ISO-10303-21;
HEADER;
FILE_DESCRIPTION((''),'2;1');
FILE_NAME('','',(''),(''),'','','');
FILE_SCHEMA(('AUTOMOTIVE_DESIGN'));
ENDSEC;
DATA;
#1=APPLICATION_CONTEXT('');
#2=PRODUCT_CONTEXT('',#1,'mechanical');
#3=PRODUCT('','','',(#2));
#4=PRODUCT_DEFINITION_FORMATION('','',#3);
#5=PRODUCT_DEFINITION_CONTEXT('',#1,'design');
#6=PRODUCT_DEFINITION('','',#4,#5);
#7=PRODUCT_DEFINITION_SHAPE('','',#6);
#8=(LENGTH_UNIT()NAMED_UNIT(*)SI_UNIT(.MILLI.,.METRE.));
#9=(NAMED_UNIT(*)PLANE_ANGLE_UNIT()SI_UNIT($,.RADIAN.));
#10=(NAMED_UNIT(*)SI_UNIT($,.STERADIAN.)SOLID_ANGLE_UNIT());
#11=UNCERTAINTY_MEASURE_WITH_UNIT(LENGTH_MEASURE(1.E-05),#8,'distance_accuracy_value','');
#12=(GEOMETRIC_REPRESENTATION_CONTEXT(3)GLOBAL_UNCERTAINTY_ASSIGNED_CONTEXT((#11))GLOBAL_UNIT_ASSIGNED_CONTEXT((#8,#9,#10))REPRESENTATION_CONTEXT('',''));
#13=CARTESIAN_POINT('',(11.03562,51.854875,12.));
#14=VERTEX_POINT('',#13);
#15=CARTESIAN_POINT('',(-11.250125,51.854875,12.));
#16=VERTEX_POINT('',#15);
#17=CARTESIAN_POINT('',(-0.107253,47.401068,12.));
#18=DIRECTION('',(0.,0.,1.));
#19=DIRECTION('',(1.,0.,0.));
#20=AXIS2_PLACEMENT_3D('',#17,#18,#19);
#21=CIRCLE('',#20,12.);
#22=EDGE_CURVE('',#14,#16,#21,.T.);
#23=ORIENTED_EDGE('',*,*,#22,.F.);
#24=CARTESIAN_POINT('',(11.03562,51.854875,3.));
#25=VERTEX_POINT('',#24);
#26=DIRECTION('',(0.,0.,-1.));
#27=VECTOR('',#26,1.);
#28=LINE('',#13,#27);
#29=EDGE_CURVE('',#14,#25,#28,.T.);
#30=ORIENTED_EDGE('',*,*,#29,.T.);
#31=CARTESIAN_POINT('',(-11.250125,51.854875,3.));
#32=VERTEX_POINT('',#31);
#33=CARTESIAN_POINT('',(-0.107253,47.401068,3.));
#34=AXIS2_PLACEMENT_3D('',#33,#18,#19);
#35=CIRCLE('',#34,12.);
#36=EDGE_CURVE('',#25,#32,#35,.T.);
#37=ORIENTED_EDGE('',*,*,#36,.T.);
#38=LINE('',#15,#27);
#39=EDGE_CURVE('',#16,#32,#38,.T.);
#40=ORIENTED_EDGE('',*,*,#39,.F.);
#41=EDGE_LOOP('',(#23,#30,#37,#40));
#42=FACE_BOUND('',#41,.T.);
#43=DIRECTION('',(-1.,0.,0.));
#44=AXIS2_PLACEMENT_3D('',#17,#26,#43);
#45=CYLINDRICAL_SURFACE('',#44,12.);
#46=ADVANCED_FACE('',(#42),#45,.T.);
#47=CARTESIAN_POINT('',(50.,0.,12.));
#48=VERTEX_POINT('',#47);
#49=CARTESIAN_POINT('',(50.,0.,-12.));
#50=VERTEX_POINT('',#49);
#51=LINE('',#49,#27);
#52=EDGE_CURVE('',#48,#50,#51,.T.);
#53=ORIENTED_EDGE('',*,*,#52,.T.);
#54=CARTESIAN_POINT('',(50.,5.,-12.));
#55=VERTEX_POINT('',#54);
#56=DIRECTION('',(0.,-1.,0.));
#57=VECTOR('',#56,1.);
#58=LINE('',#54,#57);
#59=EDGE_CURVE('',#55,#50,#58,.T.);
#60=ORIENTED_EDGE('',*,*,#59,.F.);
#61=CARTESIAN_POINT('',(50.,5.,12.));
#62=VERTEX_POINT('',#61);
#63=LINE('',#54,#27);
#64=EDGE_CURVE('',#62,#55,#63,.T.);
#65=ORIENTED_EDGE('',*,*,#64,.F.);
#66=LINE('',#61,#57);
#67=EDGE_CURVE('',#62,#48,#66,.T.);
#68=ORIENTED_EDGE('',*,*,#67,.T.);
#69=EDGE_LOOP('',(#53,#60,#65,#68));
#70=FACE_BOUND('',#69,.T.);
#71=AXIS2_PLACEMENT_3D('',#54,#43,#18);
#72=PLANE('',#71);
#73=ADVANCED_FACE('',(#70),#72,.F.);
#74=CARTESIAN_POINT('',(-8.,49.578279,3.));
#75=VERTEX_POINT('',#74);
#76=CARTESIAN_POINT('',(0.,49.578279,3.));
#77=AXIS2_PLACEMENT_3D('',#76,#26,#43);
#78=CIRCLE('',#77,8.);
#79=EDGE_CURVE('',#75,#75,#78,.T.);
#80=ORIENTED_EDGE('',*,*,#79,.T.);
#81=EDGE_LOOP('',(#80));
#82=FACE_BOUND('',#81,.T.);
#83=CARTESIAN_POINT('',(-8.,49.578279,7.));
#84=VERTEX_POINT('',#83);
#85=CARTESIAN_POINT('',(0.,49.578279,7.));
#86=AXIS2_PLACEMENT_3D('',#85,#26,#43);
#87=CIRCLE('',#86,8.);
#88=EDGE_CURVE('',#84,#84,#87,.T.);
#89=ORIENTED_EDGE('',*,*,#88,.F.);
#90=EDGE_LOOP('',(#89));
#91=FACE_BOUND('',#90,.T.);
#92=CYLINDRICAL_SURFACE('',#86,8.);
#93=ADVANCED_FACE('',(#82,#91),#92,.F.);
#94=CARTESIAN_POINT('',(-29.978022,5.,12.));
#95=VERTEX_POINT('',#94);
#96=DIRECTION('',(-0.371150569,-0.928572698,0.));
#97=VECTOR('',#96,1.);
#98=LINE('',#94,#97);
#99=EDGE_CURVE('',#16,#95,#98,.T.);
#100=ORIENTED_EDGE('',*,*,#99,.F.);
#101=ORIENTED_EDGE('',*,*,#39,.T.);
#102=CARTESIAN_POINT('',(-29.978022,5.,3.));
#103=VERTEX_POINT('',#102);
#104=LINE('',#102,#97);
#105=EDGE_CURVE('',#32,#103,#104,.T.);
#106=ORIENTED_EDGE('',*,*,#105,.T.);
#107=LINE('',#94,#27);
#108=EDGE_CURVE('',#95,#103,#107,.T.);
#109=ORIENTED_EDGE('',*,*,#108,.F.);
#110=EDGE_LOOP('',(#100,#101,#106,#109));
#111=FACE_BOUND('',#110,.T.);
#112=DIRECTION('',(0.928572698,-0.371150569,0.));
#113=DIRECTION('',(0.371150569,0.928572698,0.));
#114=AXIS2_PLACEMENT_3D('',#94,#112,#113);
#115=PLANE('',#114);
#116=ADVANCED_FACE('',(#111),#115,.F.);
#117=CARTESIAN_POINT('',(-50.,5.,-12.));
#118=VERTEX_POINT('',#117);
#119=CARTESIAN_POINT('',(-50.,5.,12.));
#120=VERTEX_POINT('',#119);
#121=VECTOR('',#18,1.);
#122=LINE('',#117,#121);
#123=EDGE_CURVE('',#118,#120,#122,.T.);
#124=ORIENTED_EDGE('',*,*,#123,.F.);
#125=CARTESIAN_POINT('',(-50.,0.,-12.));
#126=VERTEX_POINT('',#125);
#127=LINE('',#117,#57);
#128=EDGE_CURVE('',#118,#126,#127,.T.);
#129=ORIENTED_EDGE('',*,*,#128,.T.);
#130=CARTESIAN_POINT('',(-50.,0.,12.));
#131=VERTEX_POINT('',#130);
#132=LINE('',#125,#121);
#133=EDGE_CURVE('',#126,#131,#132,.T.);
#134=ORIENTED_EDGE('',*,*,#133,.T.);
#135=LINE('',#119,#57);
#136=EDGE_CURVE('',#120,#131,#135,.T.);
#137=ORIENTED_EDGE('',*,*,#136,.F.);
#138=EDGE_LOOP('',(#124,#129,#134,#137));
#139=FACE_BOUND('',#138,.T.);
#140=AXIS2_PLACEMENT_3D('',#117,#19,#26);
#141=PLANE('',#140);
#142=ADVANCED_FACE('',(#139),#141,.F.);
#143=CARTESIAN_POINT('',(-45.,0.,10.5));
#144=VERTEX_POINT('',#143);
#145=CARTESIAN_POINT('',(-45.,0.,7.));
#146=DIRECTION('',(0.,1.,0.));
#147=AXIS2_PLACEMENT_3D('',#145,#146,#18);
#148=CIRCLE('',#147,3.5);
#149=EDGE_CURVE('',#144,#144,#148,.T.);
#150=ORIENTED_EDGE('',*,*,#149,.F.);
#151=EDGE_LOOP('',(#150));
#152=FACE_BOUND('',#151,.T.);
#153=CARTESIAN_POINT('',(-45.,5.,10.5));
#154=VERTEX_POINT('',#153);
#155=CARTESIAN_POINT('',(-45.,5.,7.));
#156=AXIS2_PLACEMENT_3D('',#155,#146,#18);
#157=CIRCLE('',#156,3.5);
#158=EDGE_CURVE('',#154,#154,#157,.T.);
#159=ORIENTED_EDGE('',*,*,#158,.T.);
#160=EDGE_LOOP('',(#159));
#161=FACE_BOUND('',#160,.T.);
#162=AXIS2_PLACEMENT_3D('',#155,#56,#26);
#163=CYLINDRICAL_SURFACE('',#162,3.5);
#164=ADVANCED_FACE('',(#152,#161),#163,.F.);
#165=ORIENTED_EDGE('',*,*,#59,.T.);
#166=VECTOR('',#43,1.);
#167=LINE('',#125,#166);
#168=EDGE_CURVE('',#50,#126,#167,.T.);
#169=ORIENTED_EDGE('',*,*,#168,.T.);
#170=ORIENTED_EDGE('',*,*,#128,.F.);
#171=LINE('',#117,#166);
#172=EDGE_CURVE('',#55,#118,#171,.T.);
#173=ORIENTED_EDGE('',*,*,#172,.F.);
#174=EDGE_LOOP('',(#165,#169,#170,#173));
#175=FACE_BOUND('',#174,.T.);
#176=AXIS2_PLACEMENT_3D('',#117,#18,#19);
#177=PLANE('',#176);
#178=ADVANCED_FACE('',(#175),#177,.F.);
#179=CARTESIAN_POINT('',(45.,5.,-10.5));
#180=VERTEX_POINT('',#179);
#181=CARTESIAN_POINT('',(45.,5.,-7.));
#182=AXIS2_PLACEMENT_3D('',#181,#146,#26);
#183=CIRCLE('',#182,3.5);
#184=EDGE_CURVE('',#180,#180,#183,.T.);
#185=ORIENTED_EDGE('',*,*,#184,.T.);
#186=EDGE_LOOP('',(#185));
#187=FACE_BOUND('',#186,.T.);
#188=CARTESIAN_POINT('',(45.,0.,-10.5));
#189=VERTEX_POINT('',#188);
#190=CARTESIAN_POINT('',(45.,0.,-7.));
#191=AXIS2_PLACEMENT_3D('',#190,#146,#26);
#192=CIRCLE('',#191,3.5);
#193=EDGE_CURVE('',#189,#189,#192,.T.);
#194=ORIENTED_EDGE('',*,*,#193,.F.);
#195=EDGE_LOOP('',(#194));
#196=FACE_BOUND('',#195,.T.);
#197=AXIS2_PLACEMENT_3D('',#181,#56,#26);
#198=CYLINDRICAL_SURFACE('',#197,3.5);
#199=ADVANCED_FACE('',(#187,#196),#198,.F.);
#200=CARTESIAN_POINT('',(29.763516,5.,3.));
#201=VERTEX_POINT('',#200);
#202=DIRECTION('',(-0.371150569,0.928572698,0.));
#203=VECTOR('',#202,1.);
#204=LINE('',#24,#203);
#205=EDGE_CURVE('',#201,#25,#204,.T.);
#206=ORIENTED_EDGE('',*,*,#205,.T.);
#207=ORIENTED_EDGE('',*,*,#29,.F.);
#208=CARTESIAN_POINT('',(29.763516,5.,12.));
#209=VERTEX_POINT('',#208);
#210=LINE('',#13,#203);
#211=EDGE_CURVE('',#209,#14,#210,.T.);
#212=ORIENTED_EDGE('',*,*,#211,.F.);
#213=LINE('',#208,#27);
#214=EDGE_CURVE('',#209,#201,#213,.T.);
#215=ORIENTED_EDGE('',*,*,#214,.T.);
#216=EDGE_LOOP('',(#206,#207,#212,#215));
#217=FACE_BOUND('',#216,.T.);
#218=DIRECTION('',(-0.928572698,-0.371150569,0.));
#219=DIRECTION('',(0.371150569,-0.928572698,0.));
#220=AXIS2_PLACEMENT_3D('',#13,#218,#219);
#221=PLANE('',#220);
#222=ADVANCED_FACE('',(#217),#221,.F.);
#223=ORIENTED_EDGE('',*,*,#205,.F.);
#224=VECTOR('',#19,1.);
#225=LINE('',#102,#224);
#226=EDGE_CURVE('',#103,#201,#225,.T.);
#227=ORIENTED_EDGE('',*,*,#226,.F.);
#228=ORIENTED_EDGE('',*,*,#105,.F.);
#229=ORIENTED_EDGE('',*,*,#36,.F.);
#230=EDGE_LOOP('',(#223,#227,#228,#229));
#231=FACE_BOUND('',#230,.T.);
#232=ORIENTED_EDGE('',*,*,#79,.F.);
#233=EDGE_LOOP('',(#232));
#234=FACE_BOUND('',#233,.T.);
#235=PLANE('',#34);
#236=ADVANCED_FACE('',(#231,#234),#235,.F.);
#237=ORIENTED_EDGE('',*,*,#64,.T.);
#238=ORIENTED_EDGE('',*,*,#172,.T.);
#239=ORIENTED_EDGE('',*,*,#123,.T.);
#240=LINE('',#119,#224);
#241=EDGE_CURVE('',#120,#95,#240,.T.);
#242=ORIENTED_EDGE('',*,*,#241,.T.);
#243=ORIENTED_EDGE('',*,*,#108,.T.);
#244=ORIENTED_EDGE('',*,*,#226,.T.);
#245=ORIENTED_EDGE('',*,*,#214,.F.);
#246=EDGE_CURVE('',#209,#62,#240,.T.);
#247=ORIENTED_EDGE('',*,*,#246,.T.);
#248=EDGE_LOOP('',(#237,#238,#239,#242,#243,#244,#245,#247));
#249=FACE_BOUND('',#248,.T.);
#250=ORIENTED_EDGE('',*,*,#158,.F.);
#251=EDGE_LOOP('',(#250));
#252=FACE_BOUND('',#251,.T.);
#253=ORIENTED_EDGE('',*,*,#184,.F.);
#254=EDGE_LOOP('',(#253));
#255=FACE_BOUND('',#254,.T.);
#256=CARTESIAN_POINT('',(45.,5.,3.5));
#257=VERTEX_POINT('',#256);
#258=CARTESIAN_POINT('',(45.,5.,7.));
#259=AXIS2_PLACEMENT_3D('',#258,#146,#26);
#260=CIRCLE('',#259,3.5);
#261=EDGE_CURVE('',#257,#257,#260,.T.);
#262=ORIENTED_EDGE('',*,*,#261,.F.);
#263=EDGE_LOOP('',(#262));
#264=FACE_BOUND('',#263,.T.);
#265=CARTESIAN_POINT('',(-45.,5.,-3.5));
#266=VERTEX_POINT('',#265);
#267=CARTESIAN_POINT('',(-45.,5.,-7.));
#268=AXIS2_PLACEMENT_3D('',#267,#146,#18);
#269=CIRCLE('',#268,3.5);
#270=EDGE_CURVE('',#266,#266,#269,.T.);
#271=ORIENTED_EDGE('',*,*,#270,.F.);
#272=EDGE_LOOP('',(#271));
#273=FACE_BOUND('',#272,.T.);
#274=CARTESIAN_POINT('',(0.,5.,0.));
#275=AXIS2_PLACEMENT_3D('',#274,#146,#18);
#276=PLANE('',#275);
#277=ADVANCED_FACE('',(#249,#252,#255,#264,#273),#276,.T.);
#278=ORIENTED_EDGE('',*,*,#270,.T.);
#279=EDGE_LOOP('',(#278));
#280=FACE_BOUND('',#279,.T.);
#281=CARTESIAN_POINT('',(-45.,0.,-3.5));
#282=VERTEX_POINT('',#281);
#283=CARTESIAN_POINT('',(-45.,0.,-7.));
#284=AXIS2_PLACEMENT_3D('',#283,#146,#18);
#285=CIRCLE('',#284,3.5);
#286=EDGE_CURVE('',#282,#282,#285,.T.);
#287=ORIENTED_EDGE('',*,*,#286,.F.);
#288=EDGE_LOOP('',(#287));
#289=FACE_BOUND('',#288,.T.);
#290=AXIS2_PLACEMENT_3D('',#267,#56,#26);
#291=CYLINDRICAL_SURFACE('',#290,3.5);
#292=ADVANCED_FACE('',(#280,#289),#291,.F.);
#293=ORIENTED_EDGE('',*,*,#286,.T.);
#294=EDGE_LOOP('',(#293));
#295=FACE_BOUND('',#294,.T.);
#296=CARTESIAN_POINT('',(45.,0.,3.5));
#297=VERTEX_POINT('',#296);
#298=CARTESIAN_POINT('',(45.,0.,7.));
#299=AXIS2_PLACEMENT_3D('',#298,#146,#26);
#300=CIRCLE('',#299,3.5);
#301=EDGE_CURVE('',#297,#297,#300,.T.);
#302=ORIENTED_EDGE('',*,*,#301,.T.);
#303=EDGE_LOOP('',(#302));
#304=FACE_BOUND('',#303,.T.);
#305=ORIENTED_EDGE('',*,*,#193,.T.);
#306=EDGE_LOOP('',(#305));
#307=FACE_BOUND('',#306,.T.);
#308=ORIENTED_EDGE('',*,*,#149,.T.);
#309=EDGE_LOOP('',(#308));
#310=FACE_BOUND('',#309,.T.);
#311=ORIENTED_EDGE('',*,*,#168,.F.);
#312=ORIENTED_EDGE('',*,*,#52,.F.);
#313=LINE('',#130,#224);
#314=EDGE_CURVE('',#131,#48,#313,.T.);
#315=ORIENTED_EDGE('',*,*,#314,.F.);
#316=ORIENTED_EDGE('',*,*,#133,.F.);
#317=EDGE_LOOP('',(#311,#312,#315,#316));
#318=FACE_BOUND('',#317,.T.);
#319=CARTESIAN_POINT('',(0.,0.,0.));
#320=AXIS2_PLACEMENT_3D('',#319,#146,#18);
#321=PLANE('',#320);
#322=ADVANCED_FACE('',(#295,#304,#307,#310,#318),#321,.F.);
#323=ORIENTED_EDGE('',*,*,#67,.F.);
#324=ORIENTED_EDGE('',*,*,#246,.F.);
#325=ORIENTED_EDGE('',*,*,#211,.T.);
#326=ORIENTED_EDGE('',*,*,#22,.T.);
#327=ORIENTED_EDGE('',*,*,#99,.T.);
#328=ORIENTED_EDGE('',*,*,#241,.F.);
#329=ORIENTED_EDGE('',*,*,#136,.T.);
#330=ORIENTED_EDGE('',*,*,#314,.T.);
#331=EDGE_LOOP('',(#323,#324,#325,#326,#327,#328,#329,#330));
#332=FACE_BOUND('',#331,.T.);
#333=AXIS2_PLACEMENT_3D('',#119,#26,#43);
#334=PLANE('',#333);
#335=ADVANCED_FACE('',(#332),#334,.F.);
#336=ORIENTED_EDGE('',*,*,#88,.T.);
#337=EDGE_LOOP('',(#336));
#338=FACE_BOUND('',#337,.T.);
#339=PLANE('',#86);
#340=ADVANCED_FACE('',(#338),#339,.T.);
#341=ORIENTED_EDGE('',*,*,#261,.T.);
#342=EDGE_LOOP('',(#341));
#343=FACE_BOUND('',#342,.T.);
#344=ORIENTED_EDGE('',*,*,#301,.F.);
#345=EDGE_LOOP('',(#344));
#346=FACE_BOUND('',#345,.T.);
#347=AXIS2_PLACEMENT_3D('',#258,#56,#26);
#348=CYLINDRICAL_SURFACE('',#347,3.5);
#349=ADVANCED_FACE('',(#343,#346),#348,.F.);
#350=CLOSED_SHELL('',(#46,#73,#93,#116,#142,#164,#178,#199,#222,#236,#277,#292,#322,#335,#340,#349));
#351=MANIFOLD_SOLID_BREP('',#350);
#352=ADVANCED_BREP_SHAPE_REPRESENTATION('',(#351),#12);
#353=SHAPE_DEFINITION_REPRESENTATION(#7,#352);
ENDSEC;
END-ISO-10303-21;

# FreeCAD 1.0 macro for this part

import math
import FreeCAD as App
import Part
import Sketcher
Q = App.Units.Quantity


def add_polygon(sketch, points):
    """Adds a closed chain of lines whose ends are joined by coincident constraints."""
    first, n = sketch.GeometryCount, len(points)
    for a, b in zip(points, points[1:] + points[:1]):
        sketch.addGeometry(Part.LineSegment(App.Vector(*a, 0), App.Vector(*b, 0)), False)
    for i in range(n):
        sketch.addConstraint(Sketcher.Constraint("Coincident", first + i, 2, first + (i + 1) % n, 1))

doc = App.newDocument("Part")
body = doc.addObject("PartDesign::Body", "Body")

# Sketch on XZ plane
sketch1 = body.newObject("Sketcher::SketchObject", "Sketch")
sketch1.AttachmentSupport = (doc.getObject("XZ_Plane"), [""])
sketch1.MapMode = "FlatFace"
add_polygon(sketch1, [(-50, -12), (-50, 12), (50, 12), (50, -12)])  # lines 0-3
sketch1.addGeometry(Part.Circle(App.Vector(-45, 7, 0), App.Vector(0, 0, 1), 3.5), False)  # 4
sketch1.addGeometry(Part.Circle(App.Vector(45, 7, 0), App.Vector(0, 0, 1), 3.5), False)  # 5
sketch1.addGeometry(Part.Circle(App.Vector(-45, -7, 0), App.Vector(0, 0, 1), 3.5), False)  # 6
sketch1.addGeometry(Part.Circle(App.Vector(45, -7, 0), App.Vector(0, 0, 1), 3.5), False)  # 7
sketch1.addConstraint([
    Sketcher.Constraint("Vertical", 0),
    Sketcher.Constraint("Horizontal", 1),
    Sketcher.Constraint("Vertical", 2),
    Sketcher.Constraint("Horizontal", 3),
    Sketcher.Constraint("Equal", 4, 5),
    Sketcher.Constraint("Equal", 5, 6),
    Sketcher.Constraint("Equal", 6, 7),
    Sketcher.Constraint("Symmetric", 5, 3, 6, 3, -1, 1),
    Sketcher.Constraint("Symmetric", 4, 3, 7, 3, -1, 1),
    Sketcher.Constraint("Symmetric", 0, 2, 2, 2, -1, 1),
    Sketcher.Constraint("Symmetric", 4, 3, 5, 3, -2),
    Sketcher.Constraint("Diameter", 4, Q("7 mm")),
    Sketcher.Constraint("DistanceX", 1, 1, 1, 2, Q("100 mm")),
    Sketcher.Constraint("DistanceY", 0, 1, 0, 2, Q("24 mm")),
    Sketcher.Constraint("DistanceX", 4, 3, -1, 1, Q("45 mm")),
    Sketcher.Constraint("DistanceY", -1, 1, 4, 3, Q("7 mm")),
])
pad1 = body.newObject("PartDesign::Pad", "Pad")
pad1.Profile = sketch1
pad1.Length = 5
pad1.Reversed = True

# Sketch on XY plane
sketch2 = body.newObject("Sketcher::SketchObject", "Sketch001")
sketch2.AttachmentSupport = (doc.getObject("XY_Plane"), [""])
sketch2.MapMode = "FlatFace"
sketch2.AttachmentOffset = App.Placement(App.Vector(0, 0, 3), App.Rotation())
sketch2.addGeometry([
    Part.LineSegment(App.Vector(-30, 5, 0), App.Vector(30, 5, 0)),
    Part.LineSegment(App.Vector(30, 5, 0), App.Vector(11, 52, 0)),
    Part.ArcOfCircle(Part.Circle(App.Vector(0, 47, 0), App.Vector(0, 0, 1), 12), math.radians(22), math.radians(158)),
    Part.LineSegment(App.Vector(-11, 52, 0), App.Vector(-30, 5, 0)),
], False)
sketch2.addConstraint([
    Sketcher.Constraint("Coincident", 0, 2, 1, 1),
    Sketcher.Constraint("Tangent", 1, 2, 2, 1),
    Sketcher.Constraint("Tangent", 2, 2, 3, 1),
    Sketcher.Constraint("Coincident", 3, 2, 0, 1),
    Sketcher.Constraint("Horizontal", 0),
    Sketcher.Constraint("Horizontal", 1, 2, 2, 2),
    Sketcher.Constraint("Radius", 2, Q("12 mm")),
    Sketcher.Constraint("DistanceY", -1, 1, 0, 2, Q("5 mm")),
    Sketcher.Constraint("DistanceX", 0, 1, 0, 2, Q("59.741538 mm")),
    Sketcher.Constraint("DistanceX", -1, 1, 1, 2, Q("11.03562 mm")),
    Sketcher.Constraint("DistanceX", 3, 2, -1, 1, Q("29.978022 mm")),
])
pad2 = body.newObject("PartDesign::Pad", "Pad001")
pad2.Profile = sketch2
pad2.Length = 9

# Sketch on XY plane
sketch3 = body.newObject("Sketcher::SketchObject", "Sketch002")
sketch3.AttachmentSupport = (doc.getObject("XY_Plane"), [""])
sketch3.MapMode = "FlatFace"
sketch3.AttachmentOffset = App.Placement(App.Vector(0, 0, 3), App.Rotation())
sketch3.addGeometry(Part.Circle(App.Vector(0, 50, 0), App.Vector(0, 0, 1), 8), False)
sketch3.addConstraint([
    Sketcher.Constraint("PointOnObject", 0, 3, -2),
    Sketcher.Constraint("Diameter", 0, Q("16 mm")),
    Sketcher.Constraint("DistanceY", -1, 1, 0, 3, Q("49.578279 mm")),
])
pocket1 = body.newObject("PartDesign::Pocket", "Pocket")
pocket1.Profile = sketch3
pocket1.Length = 4
pocket1.Reversed = True

doc.recompute()
